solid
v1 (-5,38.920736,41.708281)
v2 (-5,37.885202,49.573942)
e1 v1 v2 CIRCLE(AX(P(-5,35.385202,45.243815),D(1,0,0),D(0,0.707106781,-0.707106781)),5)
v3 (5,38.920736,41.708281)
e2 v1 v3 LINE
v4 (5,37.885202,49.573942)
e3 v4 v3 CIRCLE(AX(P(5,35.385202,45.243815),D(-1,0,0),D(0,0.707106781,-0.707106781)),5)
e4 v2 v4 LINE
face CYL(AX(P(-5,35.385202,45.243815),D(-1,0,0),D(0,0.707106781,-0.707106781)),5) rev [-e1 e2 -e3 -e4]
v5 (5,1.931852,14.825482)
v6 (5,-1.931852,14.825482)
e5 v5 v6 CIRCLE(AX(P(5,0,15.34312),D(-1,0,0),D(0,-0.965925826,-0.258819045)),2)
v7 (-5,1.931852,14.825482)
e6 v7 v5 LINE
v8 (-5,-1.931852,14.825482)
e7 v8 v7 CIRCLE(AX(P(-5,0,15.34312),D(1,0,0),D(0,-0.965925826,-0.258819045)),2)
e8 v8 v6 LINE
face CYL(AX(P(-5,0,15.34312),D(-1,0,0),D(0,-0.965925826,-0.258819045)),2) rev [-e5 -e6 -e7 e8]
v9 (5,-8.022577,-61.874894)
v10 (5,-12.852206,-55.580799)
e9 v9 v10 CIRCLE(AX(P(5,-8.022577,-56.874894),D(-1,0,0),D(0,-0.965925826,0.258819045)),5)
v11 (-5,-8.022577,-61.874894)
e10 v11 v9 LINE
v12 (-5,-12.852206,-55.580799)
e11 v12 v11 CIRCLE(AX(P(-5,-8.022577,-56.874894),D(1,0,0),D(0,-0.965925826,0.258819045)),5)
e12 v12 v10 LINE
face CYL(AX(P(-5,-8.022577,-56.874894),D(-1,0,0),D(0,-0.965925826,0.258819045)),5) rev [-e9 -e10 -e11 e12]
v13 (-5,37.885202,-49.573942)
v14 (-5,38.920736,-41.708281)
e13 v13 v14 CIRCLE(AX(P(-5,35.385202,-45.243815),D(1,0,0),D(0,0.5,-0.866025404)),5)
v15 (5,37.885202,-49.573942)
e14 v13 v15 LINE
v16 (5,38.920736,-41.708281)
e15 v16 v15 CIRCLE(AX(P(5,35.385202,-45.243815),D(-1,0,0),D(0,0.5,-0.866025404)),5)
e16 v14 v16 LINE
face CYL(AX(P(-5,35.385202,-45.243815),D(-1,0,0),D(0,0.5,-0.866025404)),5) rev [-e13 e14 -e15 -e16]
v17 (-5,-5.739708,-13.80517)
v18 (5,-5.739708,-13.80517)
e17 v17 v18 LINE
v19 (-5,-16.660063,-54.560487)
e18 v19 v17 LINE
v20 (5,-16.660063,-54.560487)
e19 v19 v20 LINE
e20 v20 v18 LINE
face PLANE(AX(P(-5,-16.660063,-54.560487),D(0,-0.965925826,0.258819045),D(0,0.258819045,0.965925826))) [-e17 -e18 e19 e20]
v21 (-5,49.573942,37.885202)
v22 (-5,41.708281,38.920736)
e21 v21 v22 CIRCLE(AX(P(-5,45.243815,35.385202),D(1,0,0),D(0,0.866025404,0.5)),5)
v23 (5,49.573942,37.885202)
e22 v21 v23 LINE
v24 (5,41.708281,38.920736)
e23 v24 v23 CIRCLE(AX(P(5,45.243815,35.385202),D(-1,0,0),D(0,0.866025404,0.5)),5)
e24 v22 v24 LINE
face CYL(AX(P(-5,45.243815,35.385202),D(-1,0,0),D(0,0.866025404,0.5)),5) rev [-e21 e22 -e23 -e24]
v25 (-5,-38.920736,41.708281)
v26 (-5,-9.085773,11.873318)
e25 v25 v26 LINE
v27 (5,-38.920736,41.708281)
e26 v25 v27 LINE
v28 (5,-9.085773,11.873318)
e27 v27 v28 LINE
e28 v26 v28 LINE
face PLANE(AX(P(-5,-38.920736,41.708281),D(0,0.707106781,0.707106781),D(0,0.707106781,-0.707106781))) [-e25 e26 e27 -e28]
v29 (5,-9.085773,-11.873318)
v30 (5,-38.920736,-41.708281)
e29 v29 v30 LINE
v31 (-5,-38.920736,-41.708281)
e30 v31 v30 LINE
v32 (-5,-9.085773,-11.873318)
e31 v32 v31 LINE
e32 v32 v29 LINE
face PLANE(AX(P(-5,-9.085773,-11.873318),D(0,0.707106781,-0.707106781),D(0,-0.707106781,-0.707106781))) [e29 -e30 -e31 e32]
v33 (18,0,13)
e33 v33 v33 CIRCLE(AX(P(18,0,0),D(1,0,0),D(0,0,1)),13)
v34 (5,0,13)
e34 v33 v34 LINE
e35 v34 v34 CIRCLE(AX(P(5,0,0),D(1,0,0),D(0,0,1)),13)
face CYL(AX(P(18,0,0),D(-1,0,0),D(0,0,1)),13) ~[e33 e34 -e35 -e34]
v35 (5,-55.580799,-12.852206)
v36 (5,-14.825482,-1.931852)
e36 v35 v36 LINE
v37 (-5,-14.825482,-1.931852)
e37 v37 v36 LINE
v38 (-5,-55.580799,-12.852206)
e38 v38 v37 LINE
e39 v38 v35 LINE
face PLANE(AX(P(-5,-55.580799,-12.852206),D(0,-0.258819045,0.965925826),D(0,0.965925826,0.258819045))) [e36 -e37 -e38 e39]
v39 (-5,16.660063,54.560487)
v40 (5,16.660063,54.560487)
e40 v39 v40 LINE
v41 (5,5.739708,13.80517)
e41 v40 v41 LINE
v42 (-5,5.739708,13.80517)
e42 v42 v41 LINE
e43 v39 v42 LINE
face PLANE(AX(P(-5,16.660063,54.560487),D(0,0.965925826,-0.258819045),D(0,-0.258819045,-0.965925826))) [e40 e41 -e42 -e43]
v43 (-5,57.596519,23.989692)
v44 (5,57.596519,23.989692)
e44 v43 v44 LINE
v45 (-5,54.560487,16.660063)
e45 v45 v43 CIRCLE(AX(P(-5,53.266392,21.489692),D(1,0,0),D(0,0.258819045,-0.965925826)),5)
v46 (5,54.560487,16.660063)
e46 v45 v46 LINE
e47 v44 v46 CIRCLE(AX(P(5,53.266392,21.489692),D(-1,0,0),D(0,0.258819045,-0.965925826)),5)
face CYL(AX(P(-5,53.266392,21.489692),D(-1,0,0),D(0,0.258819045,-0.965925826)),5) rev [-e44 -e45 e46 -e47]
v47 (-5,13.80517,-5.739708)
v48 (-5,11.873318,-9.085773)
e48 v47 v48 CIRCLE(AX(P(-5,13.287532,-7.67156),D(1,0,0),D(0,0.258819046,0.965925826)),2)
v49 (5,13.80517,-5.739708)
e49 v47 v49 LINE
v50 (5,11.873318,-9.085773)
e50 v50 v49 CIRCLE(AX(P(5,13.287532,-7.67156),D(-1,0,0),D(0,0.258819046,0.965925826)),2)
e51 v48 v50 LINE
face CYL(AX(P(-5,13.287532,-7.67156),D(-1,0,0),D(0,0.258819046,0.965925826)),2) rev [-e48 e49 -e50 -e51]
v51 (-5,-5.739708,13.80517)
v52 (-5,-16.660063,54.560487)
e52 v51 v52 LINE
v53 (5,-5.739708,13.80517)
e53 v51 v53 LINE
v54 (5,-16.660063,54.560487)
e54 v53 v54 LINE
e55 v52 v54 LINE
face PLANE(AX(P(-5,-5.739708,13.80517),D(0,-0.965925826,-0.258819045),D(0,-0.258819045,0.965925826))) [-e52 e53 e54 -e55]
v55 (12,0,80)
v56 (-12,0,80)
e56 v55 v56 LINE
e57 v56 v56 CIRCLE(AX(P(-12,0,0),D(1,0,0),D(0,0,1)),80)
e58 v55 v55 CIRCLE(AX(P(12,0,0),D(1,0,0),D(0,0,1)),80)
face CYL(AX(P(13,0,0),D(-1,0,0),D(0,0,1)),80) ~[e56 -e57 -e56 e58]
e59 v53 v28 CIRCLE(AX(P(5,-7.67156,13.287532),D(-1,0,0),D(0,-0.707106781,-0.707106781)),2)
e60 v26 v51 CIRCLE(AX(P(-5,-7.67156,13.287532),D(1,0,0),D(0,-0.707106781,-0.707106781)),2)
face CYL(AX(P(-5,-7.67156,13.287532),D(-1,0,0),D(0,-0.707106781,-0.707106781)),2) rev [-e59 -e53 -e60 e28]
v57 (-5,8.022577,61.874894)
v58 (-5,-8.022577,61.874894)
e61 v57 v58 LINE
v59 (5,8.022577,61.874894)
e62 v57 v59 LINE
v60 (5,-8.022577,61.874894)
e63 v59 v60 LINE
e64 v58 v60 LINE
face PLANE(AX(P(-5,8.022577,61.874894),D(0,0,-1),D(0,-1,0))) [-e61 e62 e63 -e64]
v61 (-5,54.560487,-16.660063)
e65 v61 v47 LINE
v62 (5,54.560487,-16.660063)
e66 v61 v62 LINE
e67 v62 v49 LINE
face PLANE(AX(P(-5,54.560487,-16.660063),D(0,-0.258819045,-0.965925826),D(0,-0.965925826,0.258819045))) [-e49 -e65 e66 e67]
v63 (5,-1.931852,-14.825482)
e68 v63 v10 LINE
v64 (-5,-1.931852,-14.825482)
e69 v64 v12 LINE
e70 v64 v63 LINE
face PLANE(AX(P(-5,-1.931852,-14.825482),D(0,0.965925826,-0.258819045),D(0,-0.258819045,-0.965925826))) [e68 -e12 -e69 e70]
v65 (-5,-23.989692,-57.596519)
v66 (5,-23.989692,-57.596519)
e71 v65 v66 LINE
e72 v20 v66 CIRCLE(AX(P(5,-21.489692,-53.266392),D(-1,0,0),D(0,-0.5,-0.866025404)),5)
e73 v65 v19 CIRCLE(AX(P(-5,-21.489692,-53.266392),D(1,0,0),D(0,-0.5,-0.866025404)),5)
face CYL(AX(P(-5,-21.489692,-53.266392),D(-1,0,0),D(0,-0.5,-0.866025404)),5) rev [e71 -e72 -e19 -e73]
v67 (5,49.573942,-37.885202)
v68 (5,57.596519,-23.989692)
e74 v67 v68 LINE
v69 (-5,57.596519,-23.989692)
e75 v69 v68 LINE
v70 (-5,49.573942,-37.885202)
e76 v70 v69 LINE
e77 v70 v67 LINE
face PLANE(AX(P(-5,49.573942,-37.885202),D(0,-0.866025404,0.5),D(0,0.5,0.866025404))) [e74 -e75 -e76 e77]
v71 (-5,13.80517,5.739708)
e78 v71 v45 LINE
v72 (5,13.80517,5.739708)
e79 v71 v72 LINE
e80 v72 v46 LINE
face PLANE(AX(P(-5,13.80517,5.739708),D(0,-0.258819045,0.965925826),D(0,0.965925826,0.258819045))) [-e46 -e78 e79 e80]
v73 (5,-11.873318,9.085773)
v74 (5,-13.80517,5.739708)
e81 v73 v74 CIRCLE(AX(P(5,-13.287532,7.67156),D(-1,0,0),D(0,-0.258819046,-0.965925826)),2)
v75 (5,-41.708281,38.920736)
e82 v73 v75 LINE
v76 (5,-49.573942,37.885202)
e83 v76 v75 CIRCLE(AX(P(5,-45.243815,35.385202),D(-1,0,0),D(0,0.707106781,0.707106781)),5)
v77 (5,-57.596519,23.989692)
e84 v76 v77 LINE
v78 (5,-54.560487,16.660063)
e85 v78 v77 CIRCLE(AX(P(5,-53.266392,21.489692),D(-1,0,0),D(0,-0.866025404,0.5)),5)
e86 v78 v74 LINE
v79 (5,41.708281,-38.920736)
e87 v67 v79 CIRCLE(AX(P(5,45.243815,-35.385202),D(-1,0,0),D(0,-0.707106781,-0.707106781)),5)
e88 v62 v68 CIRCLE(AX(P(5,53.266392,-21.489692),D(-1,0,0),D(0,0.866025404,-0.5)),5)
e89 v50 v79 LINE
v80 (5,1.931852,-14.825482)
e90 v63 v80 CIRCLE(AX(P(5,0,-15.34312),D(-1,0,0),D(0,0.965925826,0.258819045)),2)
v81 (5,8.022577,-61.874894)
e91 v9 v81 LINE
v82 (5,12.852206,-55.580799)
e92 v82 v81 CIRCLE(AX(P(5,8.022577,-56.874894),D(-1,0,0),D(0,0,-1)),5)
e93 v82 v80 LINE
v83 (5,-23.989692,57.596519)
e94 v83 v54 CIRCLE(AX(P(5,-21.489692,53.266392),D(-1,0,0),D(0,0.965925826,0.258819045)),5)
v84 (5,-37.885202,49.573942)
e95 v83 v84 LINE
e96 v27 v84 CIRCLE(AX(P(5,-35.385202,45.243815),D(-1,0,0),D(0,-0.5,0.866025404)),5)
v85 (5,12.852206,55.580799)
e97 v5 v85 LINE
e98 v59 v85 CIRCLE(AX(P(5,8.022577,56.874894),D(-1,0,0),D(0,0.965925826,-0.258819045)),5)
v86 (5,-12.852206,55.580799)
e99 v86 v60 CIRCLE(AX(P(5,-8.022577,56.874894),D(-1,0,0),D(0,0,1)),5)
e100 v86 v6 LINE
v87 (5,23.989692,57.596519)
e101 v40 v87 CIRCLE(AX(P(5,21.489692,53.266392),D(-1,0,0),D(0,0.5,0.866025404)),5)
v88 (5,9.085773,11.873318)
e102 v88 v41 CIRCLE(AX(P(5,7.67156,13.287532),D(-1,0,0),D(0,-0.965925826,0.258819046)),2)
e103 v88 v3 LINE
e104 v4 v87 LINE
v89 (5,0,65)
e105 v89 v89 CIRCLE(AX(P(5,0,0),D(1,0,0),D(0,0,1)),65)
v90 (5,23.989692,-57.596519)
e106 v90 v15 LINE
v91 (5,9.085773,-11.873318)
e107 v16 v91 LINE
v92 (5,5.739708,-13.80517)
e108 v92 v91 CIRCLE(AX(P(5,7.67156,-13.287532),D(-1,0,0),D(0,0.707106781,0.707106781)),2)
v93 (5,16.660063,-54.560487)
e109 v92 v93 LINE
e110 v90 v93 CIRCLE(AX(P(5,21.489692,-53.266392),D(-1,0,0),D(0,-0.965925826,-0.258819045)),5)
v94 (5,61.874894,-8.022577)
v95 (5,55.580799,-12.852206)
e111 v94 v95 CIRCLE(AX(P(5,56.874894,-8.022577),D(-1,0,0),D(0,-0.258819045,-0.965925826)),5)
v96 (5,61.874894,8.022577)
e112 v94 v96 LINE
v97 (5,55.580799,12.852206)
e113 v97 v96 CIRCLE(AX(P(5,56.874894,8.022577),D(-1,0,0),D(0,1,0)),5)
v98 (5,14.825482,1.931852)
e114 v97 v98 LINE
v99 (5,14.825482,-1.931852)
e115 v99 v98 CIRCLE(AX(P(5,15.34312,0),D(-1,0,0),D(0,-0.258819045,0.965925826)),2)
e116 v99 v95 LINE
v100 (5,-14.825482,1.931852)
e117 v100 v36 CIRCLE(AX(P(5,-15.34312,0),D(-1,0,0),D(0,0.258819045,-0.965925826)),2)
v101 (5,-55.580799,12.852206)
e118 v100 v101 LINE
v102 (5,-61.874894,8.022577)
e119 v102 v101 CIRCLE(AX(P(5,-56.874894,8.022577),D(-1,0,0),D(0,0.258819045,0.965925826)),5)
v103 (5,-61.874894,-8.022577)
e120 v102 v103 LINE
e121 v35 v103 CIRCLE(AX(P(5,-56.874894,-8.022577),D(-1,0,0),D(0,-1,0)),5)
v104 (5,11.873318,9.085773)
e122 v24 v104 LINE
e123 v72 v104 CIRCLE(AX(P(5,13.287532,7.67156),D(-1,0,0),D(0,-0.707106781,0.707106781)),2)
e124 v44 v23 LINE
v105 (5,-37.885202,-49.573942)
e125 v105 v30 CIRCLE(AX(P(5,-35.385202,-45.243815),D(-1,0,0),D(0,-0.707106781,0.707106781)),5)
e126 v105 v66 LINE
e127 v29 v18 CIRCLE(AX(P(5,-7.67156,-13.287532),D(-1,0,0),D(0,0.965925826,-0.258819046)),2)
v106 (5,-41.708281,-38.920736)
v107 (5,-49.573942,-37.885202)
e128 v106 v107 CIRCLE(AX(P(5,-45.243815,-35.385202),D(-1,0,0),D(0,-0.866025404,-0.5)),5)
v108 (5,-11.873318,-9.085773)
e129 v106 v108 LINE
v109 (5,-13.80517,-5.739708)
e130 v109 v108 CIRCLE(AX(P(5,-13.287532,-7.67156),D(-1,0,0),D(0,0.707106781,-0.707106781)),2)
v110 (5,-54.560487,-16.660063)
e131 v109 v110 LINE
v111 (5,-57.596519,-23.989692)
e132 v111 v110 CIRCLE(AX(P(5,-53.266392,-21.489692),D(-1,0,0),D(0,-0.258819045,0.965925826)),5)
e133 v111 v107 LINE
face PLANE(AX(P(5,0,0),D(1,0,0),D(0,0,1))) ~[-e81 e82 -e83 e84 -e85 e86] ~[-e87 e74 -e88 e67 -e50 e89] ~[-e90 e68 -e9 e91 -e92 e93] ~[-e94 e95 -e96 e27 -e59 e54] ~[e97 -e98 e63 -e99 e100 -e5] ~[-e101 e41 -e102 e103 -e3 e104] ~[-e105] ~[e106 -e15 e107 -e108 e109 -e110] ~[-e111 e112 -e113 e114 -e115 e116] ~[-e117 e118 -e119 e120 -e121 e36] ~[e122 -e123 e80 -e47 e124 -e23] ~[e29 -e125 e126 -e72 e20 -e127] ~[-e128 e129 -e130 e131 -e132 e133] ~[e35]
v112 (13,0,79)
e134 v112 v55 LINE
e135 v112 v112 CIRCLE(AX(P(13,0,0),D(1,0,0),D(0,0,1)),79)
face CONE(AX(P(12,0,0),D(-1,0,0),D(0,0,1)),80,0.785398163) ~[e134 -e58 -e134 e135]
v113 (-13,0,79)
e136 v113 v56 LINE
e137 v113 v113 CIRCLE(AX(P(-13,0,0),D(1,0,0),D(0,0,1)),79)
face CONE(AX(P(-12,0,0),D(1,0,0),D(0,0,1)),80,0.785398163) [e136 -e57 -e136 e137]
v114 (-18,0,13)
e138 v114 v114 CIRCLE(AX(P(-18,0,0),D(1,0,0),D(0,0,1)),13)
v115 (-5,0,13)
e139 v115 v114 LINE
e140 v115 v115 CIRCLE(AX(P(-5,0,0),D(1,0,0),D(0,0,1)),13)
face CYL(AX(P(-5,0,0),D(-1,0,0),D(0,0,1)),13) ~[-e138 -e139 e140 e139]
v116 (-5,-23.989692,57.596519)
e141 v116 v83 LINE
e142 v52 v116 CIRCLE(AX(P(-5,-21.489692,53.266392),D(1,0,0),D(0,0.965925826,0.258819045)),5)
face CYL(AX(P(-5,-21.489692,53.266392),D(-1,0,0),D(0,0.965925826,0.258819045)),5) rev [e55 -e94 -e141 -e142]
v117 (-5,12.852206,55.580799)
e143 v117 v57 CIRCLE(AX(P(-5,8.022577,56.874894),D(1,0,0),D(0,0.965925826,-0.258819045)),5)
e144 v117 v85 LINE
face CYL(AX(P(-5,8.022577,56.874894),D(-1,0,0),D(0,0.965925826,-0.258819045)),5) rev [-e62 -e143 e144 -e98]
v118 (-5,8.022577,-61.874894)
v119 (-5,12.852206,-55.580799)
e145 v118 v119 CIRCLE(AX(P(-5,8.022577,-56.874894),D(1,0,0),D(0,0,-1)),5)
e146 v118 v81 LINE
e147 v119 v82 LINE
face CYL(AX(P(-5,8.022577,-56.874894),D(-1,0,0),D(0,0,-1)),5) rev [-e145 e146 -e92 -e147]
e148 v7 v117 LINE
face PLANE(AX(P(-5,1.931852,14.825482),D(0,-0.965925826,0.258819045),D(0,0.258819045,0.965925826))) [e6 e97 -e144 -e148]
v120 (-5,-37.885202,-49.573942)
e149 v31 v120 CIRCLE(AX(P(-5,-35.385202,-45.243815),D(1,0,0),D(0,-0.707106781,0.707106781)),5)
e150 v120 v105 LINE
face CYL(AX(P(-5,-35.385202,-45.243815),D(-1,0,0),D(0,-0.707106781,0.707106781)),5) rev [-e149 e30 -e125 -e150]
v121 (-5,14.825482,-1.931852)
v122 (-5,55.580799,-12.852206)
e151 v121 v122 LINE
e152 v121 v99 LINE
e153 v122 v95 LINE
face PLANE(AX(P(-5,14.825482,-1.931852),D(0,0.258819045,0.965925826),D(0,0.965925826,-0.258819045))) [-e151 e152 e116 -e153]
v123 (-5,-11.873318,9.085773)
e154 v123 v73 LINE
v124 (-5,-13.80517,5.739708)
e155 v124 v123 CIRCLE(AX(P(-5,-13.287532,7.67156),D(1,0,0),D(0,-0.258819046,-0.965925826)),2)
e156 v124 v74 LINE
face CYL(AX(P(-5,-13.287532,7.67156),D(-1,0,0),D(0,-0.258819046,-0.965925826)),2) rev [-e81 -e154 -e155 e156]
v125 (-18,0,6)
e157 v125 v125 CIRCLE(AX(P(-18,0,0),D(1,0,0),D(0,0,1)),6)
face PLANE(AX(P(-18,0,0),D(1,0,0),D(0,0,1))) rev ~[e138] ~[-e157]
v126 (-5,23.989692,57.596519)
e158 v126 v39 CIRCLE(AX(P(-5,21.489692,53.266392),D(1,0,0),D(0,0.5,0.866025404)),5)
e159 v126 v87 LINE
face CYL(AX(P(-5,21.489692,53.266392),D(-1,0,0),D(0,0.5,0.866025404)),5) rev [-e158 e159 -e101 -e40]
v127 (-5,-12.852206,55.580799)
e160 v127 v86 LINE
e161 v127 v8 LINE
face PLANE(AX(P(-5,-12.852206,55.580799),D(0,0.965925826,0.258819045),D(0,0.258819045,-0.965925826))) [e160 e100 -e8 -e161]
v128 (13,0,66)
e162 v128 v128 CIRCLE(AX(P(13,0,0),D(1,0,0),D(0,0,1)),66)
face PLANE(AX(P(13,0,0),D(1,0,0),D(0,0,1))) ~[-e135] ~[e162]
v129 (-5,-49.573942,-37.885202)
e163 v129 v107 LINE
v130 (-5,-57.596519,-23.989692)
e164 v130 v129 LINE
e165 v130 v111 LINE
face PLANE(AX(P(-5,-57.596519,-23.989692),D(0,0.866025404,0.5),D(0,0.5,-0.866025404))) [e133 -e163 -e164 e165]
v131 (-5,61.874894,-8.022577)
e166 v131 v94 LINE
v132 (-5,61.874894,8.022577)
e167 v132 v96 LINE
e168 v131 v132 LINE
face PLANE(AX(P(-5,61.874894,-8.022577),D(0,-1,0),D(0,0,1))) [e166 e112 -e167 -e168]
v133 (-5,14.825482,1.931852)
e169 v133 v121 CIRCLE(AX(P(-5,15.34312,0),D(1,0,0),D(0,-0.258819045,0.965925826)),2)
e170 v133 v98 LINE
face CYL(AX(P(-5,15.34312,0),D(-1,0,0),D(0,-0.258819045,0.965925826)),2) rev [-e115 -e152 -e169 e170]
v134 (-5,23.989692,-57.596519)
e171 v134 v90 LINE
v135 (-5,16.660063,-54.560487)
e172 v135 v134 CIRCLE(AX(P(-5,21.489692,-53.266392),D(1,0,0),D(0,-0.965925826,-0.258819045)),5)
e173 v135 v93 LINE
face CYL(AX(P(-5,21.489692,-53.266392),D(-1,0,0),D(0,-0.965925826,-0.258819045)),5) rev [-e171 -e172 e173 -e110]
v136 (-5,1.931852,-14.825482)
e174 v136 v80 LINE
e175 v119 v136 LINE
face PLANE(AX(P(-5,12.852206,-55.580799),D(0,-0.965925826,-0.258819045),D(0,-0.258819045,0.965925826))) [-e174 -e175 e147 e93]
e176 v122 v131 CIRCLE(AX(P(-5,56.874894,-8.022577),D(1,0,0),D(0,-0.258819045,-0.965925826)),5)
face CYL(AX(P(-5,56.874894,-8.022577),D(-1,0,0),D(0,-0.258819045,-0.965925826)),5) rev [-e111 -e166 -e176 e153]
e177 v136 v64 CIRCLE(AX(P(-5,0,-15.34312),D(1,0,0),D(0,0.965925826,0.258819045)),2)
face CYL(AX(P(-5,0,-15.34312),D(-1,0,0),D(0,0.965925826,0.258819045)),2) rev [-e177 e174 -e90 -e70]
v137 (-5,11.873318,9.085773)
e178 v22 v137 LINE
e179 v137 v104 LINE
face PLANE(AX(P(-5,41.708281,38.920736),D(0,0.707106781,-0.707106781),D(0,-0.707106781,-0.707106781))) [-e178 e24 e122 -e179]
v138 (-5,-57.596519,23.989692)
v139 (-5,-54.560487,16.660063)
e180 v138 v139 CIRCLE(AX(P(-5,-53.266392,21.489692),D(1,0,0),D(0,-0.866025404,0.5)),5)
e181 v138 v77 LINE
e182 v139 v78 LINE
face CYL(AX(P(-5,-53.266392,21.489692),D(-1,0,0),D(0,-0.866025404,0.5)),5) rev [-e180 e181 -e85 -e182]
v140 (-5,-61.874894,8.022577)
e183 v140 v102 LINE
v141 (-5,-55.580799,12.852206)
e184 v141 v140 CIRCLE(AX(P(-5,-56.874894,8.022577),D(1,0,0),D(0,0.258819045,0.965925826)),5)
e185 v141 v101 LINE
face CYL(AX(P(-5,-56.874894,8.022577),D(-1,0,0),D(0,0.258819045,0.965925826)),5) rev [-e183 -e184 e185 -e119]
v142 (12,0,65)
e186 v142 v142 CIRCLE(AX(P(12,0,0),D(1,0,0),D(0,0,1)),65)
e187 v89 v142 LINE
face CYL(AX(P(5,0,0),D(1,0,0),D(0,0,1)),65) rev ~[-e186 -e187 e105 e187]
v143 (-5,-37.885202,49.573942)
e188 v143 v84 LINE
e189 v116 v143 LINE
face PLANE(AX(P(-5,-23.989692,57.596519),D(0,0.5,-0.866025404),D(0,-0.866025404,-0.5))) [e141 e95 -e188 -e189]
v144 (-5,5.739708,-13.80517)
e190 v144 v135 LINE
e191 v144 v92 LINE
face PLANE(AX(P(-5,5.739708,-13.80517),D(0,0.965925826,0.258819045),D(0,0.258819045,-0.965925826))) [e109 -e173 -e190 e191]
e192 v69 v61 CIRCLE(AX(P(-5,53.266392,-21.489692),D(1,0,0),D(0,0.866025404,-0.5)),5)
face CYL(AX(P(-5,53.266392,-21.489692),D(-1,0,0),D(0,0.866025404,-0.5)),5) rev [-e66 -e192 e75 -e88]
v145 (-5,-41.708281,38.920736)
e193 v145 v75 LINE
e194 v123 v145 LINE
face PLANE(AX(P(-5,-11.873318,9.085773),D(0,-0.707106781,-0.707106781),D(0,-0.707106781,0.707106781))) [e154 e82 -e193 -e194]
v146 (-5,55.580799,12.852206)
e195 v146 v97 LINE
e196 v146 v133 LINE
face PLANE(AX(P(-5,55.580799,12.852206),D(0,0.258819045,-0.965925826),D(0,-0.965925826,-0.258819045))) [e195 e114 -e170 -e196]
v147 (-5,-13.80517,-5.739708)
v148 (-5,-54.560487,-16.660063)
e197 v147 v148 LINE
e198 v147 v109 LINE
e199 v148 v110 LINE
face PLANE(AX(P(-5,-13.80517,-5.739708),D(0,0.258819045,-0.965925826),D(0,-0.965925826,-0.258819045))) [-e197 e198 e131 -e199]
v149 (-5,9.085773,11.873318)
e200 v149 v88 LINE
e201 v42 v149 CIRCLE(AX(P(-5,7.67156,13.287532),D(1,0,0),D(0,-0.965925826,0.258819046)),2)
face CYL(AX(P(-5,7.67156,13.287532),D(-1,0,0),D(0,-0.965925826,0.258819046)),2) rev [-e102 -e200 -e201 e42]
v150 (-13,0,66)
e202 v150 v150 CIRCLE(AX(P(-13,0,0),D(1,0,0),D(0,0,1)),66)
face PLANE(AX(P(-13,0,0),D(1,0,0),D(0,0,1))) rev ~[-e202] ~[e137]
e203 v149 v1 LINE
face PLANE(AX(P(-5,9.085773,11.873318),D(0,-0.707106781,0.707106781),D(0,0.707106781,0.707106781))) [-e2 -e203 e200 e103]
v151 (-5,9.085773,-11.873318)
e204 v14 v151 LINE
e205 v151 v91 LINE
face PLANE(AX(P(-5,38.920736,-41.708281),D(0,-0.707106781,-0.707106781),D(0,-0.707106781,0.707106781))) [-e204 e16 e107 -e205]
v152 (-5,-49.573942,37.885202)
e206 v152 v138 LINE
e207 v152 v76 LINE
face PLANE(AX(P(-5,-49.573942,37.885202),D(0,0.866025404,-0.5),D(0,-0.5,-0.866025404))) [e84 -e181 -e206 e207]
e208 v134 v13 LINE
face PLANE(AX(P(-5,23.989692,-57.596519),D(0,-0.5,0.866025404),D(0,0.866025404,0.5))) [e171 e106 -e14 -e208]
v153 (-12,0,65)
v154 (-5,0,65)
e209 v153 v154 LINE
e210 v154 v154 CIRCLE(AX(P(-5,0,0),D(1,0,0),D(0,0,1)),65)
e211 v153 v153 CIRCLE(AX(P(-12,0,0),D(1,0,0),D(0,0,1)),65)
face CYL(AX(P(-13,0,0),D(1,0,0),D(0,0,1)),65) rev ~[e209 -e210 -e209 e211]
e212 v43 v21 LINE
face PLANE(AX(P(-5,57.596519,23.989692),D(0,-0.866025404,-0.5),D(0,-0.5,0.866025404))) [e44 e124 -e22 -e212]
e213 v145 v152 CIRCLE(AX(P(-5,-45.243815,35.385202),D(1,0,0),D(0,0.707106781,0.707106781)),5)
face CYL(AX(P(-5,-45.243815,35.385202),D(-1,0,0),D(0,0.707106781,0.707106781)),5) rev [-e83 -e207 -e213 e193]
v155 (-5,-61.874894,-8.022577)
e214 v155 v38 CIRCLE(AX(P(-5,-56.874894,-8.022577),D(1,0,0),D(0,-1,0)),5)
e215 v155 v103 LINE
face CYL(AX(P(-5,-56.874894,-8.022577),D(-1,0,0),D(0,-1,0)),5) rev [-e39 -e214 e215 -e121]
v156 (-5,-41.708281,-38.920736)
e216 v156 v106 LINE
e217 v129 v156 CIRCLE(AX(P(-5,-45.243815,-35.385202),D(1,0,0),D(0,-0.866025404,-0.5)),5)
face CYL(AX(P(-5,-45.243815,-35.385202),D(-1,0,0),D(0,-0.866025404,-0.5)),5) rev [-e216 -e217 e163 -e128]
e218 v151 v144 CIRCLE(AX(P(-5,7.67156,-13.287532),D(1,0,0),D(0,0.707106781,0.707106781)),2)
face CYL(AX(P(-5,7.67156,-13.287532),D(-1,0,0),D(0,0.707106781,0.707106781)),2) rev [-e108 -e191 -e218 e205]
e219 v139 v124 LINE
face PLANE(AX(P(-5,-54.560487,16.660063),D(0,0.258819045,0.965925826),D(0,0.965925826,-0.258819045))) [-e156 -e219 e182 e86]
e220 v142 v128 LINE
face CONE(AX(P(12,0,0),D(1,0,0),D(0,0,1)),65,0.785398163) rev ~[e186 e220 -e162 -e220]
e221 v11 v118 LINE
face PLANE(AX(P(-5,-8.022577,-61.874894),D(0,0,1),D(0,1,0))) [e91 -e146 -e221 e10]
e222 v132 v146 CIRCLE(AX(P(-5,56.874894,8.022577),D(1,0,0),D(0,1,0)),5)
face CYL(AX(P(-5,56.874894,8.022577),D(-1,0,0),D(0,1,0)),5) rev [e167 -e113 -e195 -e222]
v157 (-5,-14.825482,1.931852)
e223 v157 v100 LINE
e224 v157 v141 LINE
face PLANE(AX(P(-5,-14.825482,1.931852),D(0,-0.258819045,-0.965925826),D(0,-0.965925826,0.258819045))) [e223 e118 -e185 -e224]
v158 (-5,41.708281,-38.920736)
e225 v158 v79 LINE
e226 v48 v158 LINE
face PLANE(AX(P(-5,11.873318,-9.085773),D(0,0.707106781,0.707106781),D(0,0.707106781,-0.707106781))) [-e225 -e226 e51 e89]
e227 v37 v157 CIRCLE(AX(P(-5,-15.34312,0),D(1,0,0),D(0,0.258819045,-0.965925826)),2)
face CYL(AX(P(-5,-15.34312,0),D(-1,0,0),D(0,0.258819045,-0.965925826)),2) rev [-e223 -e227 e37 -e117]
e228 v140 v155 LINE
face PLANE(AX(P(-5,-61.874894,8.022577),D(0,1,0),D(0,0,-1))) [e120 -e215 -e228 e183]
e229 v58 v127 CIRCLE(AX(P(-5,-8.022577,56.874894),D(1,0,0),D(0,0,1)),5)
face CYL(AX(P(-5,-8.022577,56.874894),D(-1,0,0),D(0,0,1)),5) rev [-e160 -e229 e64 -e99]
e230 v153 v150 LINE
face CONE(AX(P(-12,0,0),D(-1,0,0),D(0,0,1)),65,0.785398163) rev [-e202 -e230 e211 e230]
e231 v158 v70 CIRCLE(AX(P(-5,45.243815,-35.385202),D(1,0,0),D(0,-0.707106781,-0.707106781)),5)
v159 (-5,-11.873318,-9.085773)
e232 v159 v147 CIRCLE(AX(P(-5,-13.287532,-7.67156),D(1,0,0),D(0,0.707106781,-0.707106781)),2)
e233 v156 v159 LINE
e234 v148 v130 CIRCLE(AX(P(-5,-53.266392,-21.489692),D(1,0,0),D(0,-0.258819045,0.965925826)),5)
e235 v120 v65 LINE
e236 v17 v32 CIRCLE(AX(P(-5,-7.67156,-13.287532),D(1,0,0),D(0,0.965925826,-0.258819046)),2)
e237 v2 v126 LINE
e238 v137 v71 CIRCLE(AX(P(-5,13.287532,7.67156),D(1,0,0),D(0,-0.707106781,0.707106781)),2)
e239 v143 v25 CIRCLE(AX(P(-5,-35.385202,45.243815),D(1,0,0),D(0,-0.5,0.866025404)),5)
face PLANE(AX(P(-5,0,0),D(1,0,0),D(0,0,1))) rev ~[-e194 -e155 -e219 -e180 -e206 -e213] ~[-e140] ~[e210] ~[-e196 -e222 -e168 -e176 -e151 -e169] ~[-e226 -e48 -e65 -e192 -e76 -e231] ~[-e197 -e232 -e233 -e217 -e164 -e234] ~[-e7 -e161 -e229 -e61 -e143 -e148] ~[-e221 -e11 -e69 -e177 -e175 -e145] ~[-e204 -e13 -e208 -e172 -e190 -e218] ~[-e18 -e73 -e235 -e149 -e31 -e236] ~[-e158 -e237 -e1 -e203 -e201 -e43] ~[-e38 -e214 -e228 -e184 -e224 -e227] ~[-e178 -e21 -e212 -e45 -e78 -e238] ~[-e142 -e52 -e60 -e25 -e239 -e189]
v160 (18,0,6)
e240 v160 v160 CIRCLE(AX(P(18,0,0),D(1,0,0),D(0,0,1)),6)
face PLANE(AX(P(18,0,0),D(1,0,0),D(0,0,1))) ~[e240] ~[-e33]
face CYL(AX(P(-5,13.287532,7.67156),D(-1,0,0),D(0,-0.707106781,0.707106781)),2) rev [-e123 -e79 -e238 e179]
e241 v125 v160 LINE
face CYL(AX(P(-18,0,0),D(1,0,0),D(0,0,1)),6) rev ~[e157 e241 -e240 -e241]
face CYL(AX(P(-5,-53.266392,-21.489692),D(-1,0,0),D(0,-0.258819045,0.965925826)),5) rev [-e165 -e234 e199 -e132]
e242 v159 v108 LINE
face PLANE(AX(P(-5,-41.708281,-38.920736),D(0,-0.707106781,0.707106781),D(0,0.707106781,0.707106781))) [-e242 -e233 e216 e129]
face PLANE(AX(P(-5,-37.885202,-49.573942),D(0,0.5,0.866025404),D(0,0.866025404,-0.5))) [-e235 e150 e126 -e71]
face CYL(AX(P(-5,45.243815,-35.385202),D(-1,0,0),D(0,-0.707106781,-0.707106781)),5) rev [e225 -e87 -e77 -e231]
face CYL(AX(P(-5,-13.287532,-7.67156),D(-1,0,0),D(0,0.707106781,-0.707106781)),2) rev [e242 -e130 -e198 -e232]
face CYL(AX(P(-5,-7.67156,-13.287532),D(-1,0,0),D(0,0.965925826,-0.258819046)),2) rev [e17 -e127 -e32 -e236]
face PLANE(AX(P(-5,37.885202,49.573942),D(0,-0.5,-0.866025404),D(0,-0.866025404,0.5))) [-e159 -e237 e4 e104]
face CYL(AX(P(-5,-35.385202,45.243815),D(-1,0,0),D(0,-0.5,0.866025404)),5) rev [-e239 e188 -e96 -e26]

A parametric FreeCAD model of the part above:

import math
import FreeCAD as App
import Part
import Sketcher
Q = App.Units.Quantity


def edges_at(feature, points):
    """Names of the edges that pass closest to the given points."""
    edges = feature.Shape.Edges
    near = lambda p: min(range(len(edges)), key=lambda i: edges[i].distToShape(Part.Vertex(*p))[0])
    return sorted({f"Edge{near(p) + 1}" for p in points})


def add_polygon(sketch, points):
    """Adds a closed chain of lines whose ends are joined by coincident constraints."""
    first, n = sketch.GeometryCount, len(points)
    for a, b in zip(points, points[1:] + points[:1]):
        sketch.addGeometry(Part.LineSegment(App.Vector(*a, 0), App.Vector(*b, 0)), False)
    for i in range(n):
        sketch.addConstraint(Sketcher.Constraint("Coincident", first + i, 2, first + (i + 1) % n, 1))

doc = App.newDocument("Part")
params = doc.addObject("Spreadsheet::Sheet", "Params")
for row, (alias, value) in enumerate([
    ("sketch1_width", "36 mm"),
    ("sketch1_width2", "13 mm"),
    ("sketch1_width3", "8 mm"),
    ("sketch1_height", "7 mm"),
    ("sketch1_height2", "52 mm"),
    ("revolution_angle", "360 deg"),
    ("sketch2_radius", "5 mm"),
    ("sketch2_radius2", "2 mm"),
    ("pocket1_length", "20 mm"),
    ("chamfer_size", "1 mm"),
], start=1):
    params.set(f"A{row}", alias)
    params.set(f"B{row}", "=" + value)
    params.setAlias(f"B{row}", alias)

body = doc.addObject("PartDesign::Body", "Body")

# Sketch on XY plane
sketch1 = body.newObject("Sketcher::SketchObject", "Sketch")
sketch1.AttachmentSupport = (doc.getObject("XY_Plane"), [""])
sketch1.MapMode = "FlatFace"
add_polygon(sketch1, [(-18, 6), (18, 6), (18, 13), (5, 13), (5, 65), (13, 65), (13, 80), (-13, 80), (-13, 65), (-5, 65), (-5, 13), (-18, 13)])  # lines 0-11
sketch1.addConstraint(Sketcher.Constraint("Horizontal", 0))
sketch1.addConstraint(Sketcher.Constraint("Vertical", 1))
sketch1.addConstraint(Sketcher.Constraint("Horizontal", 2))
sketch1.addConstraint(Sketcher.Constraint("Vertical", 3))
sketch1.addConstraint(Sketcher.Constraint("Horizontal", 4))
sketch1.addConstraint(Sketcher.Constraint("Vertical", 5))
sketch1.addConstraint(Sketcher.Constraint("Horizontal", 6))
sketch1.addConstraint(Sketcher.Constraint("Vertical", 7))
sketch1.addConstraint(Sketcher.Constraint("Horizontal", 8))
sketch1.addConstraint(Sketcher.Constraint("Vertical", 9))
sketch1.addConstraint(Sketcher.Constraint("Horizontal", 10))
sketch1.addConstraint(Sketcher.Constraint("Vertical", 11))
sketch1.addConstraint(Sketcher.Constraint("Symmetric", 4, 2, 7, 2, -2))
sketch1.addConstraint(Sketcher.Constraint("Symmetric", 2, 2, 9, 2, -2))
sketch1.addConstraint(Sketcher.Constraint("Equal", 2, 10))
sketch1.addConstraint(Sketcher.Constraint("DistanceX", 0, 1, 0, 2, Q("36 mm")))
sketch1.addConstraint(Sketcher.Constraint("DistanceX", 2, 2, 2, 1, Q("13 mm")))
sketch1.addConstraint(Sketcher.Constraint("DistanceX", 4, 1, 4, 2, Q("8 mm")))
sketch1.addConstraint(Sketcher.Constraint("DistanceY", 1, 1, 1, 2, Q("7 mm")))
sketch1.addConstraint(Sketcher.Constraint("DistanceY", 3, 1, 3, 2, Q("52 mm")))
sketch1.addConstraint(Sketcher.Constraint("DistanceY", 5, 1, 5, 2, Q("15 mm")))
sketch1.addConstraint(Sketcher.Constraint("DistanceY", -1, 1, 0, 2, Q("6 mm")))
sketch1.setExpression("Constraints[27]", "Params.sketch1_width")
sketch1.setExpression("Constraints[28]", "Params.sketch1_width2")
sketch1.setExpression("Constraints[29]", "Params.sketch1_width3")
sketch1.setExpression("Constraints[30]", "Params.sketch1_height")
sketch1.setExpression("Constraints[31]", "Params.sketch1_height2")
revolution = body.newObject("PartDesign::Revolution", "Revolution")
revolution.Profile = sketch1
revolution.ReferenceAxis = (sketch1, ["H_Axis"])
revolution.setExpression("Angle", "Params.revolution_angle")

# Sketch on YZ plane
sketch2 = body.newObject("Sketcher::SketchObject", "Sketch001")
sketch2.AttachmentSupport = (doc.getObject("YZ_Plane"), [""])
sketch2.MapMode = "FlatFace"
sketch2.AttachmentOffset = App.Placement(App.Vector(0, 0, -5), App.Rotation())
sketch2.addGeometry(Part.LineSegment(App.Vector(61.9, 8, 0), App.Vector(61.9, -8, 0)), False)
sketch2.addGeometry(Part.ArcOfCircle(Part.Circle(App.Vector(56.9, -8, 0), App.Vector(0, 0, 1), 5), math.radians(-105), math.radians(0)), False)
sketch2.addGeometry(Part.LineSegment(App.Vector(55.6, -12.9, 0), App.Vector(14.8, -1.9, 0)), False)
sketch2.addGeometry(Part.ArcOfCircle(Part.Circle(App.Vector(15.3, 0, 0), App.Vector(0, 0, 1), 2), math.radians(105), math.radians(255)), False)
sketch2.addGeometry(Part.LineSegment(App.Vector(14.8, 1.9, 0), App.Vector(55.6, 12.9, 0)), False)
sketch2.addGeometry(Part.ArcOfCircle(Part.Circle(App.Vector(56.9, 8, 0), App.Vector(0, 0, 1), 5), math.radians(0), math.radians(105)), False)
sketch2.addGeometry(Part.LineSegment(App.Vector(49.6, 37.9, 0), App.Vector(57.6, 24, 0)), False)
sketch2.addGeometry(Part.ArcOfCircle(Part.Circle(App.Vector(53.3, 21.5, 0), App.Vector(0, 0, 1), 5), math.radians(-75), math.radians(30)), False)
sketch2.addGeometry(Part.LineSegment(App.Vector(54.6, 16.7, 0), App.Vector(13.8, 5.7, 0)), False)
sketch2.addGeometry(Part.ArcOfCircle(Part.Circle(App.Vector(13.3, 7.7, 0), App.Vector(0, 0, 1), 2), math.radians(135), math.radians(285)), False)
sketch2.addGeometry(Part.LineSegment(App.Vector(11.9, 9.1, 0), App.Vector(41.7, 38.9, 0)), False)
sketch2.addGeometry(Part.ArcOfCircle(Part.Circle(App.Vector(45.2, 35.4, 0), App.Vector(0, 0, 1), 5), math.radians(30), math.radians(135)), False)
sketch2.addGeometry(Part.LineSegment(App.Vector(24, 57.6, 0), App.Vector(37.9, 49.6, 0)), False)
sketch2.addGeometry(Part.ArcOfCircle(Part.Circle(App.Vector(35.4, 45.2, 0), App.Vector(0, 0, 1), 5), math.radians(-45), math.radians(60)), False)
sketch2.addGeometry(Part.LineSegment(App.Vector(38.9, 41.7, 0), App.Vector(9.1, 11.9, 0)), False)
sketch2.addGeometry(Part.ArcOfCircle(Part.Circle(App.Vector(7.7, 13.3, 0), App.Vector(0, 0, 1), 2), math.radians(165), math.radians(315)), False)
sketch2.addGeometry(Part.LineSegment(App.Vector(5.7, 13.8, 0), App.Vector(16.7, 54.6, 0)), False)
sketch2.addGeometry(Part.ArcOfCircle(Part.Circle(App.Vector(21.5, 53.3, 0), App.Vector(0, 0, 1), 5), math.radians(60), math.radians(165)), False)
sketch2.addGeometry(Part.LineSegment(App.Vector(-8, 61.9, 0), App.Vector(8, 61.9, 0)), False)
sketch2.addGeometry(Part.ArcOfCircle(Part.Circle(App.Vector(8, 56.9, 0), App.Vector(0, 0, 1), 5), math.radians(-15), math.radians(90)), False)
sketch2.addGeometry(Part.LineSegment(App.Vector(12.9, 55.6, 0), App.Vector(1.9, 14.8, 0)), False)
sketch2.addGeometry(Part.ArcOfCircle(Part.Circle(App.Vector(0, 15.3, 0), App.Vector(0, 0, 1), 2), math.radians(-165), math.radians(-15)), False)
sketch2.addGeometry(Part.LineSegment(App.Vector(-1.9, 14.8, 0), App.Vector(-12.9, 55.6, 0)), False)
sketch2.addGeometry(Part.ArcOfCircle(Part.Circle(App.Vector(-8, 56.9, 0), App.Vector(0, 0, 1), 5), math.radians(90), math.radians(195)), False)
sketch2.addGeometry(Part.LineSegment(App.Vector(-37.9, 49.6, 0), App.Vector(-24, 57.6, 0)), False)
sketch2.addGeometry(Part.ArcOfCircle(Part.Circle(App.Vector(-21.5, 53.3, 0), App.Vector(0, 0, 1), 5), math.radians(15), math.radians(120)), False)
sketch2.addGeometry(Part.LineSegment(App.Vector(-16.7, 54.6, 0), App.Vector(-5.7, 13.8, 0)), False)
sketch2.addGeometry(Part.ArcOfCircle(Part.Circle(App.Vector(-7.7, 13.3, 0), App.Vector(0, 0, 1), 2), math.radians(-135), math.radians(15)), False)
sketch2.addGeometry(Part.LineSegment(App.Vector(-9.1, 11.9, 0), App.Vector(-38.9, 41.7, 0)), False)
sketch2.addGeometry(Part.ArcOfCircle(Part.Circle(App.Vector(-35.4, 45.2, 0), App.Vector(0, 0, 1), 5), math.radians(120), math.radians(225)), False)
sketch2.addGeometry(Part.LineSegment(App.Vector(-57.6, 24, 0), App.Vector(-49.6, 37.9, 0)), False)
sketch2.addGeometry(Part.ArcOfCircle(Part.Circle(App.Vector(-45.2, 35.4, 0), App.Vector(0, 0, 1), 5), math.radians(45), math.radians(150)), False)
sketch2.addGeometry(Part.LineSegment(App.Vector(-41.7, 38.9, 0), App.Vector(-11.9, 9.1, 0)), False)
sketch2.addGeometry(Part.ArcOfCircle(Part.Circle(App.Vector(-13.3, 7.7, 0), App.Vector(0, 0, 1), 2), math.radians(-105), math.radians(45)), False)
sketch2.addGeometry(Part.LineSegment(App.Vector(-13.8, 5.7, 0), App.Vector(-54.6, 16.7, 0)), False)
sketch2.addGeometry(Part.ArcOfCircle(Part.Circle(App.Vector(-53.3, 21.5, 0), App.Vector(0, 0, 1), 5), math.radians(150), math.radians(255)), False)
sketch2.addGeometry(Part.LineSegment(App.Vector(-61.9, -8, 0), App.Vector(-61.9, 8, 0)), False)
sketch2.addGeometry(Part.ArcOfCircle(Part.Circle(App.Vector(-56.9, 8, 0), App.Vector(0, 0, 1), 5), math.radians(75), math.radians(180)), False)
sketch2.addGeometry(Part.LineSegment(App.Vector(-55.6, 12.9, 0), App.Vector(-14.8, 1.9, 0)), False)
sketch2.addGeometry(Part.ArcOfCircle(Part.Circle(App.Vector(-15.3, 0, 0), App.Vector(0, 0, 1), 2), math.radians(-75), math.radians(75)), False)
sketch2.addGeometry(Part.LineSegment(App.Vector(-14.8, -1.9, 0), App.Vector(-55.6, -12.9, 0)), False)
sketch2.addGeometry(Part.ArcOfCircle(Part.Circle(App.Vector(-56.9, -8, 0), App.Vector(0, 0, 1), 5), math.radians(180), math.radians(285)), False)
sketch2.addGeometry(Part.LineSegment(App.Vector(-49.6, -37.9, 0), App.Vector(-57.6, -24, 0)), False)
sketch2.addGeometry(Part.ArcOfCircle(Part.Circle(App.Vector(-53.3, -21.5, 0), App.Vector(0, 0, 1), 5), math.radians(105), math.radians(210)), False)
sketch2.addGeometry(Part.LineSegment(App.Vector(-54.6, -16.7, 0), App.Vector(-13.8, -5.7, 0)), False)
sketch2.addGeometry(Part.ArcOfCircle(Part.Circle(App.Vector(-13.3, -7.7, 0), App.Vector(0, 0, 1), 2), math.radians(-45), math.radians(105)), False)
sketch2.addGeometry(Part.LineSegment(App.Vector(-11.9, -9.1, 0), App.Vector(-41.7, -38.9, 0)), False)
sketch2.addGeometry(Part.ArcOfCircle(Part.Circle(App.Vector(-45.2, -35.4, 0), App.Vector(0, 0, 1), 5), math.radians(-150), math.radians(-45)), False)
sketch2.addGeometry(Part.LineSegment(App.Vector(-24, -57.6, 0), App.Vector(-37.9, -49.6, 0)), False)
sketch2.addGeometry(Part.ArcOfCircle(Part.Circle(App.Vector(-35.4, -45.2, 0), App.Vector(0, 0, 1), 5), math.radians(135), math.radians(240)), False)
sketch2.addGeometry(Part.LineSegment(App.Vector(-38.9, -41.7, 0), App.Vector(-9.1, -11.9, 0)), False)
sketch2.addGeometry(Part.ArcOfCircle(Part.Circle(App.Vector(-7.7, -13.3, 0), App.Vector(0, 0, 1), 2), math.radians(-15), math.radians(135)), False)
sketch2.addGeometry(Part.LineSegment(App.Vector(-5.7, -13.8, 0), App.Vector(-16.7, -54.6, 0)), False)
sketch2.addGeometry(Part.ArcOfCircle(Part.Circle(App.Vector(-21.5, -53.3, 0), App.Vector(0, 0, 1), 5), math.radians(-120), math.radians(-15)), False)
sketch2.addGeometry(Part.LineSegment(App.Vector(8, -61.9, 0), App.Vector(-8, -61.9, 0)), False)
sketch2.addGeometry(Part.ArcOfCircle(Part.Circle(App.Vector(-8, -56.9, 0), App.Vector(0, 0, 1), 5), math.radians(165), math.radians(270)), False)
sketch2.addGeometry(Part.LineSegment(App.Vector(-12.9, -55.6, 0), App.Vector(-1.9, -14.8, 0)), False)
sketch2.addGeometry(Part.ArcOfCircle(Part.Circle(App.Vector(0, -15.3, 0), App.Vector(0, 0, 1), 2), math.radians(15), math.radians(165)), False)
sketch2.addGeometry(Part.LineSegment(App.Vector(1.9, -14.8, 0), App.Vector(12.9, -55.6, 0)), False)
sketch2.addGeometry(Part.ArcOfCircle(Part.Circle(App.Vector(8, -56.9, 0), App.Vector(0, 0, 1), 5), math.radians(-90), math.radians(15)), False)
sketch2.addGeometry(Part.LineSegment(App.Vector(37.9, -49.6, 0), App.Vector(24, -57.6, 0)), False)
sketch2.addGeometry(Part.ArcOfCircle(Part.Circle(App.Vector(21.5, -53.3, 0), App.Vector(0, 0, 1), 5), math.radians(-165), math.radians(-60)), False)
sketch2.addGeometry(Part.LineSegment(App.Vector(16.7, -54.6, 0), App.Vector(5.7, -13.8, 0)), False)
sketch2.addGeometry(Part.ArcOfCircle(Part.Circle(App.Vector(7.7, -13.3, 0), App.Vector(0, 0, 1), 2), math.radians(45), math.radians(195)), False)
sketch2.addGeometry(Part.LineSegment(App.Vector(9.1, -11.9, 0), App.Vector(38.9, -41.7, 0)), False)
sketch2.addGeometry(Part.ArcOfCircle(Part.Circle(App.Vector(35.4, -45.2, 0), App.Vector(0, 0, 1), 5), math.radians(-60), math.radians(45)), False)
sketch2.addGeometry(Part.LineSegment(App.Vector(57.6, -24, 0), App.Vector(49.6, -37.9, 0)), False)
sketch2.addGeometry(Part.ArcOfCircle(Part.Circle(App.Vector(45.2, -35.4, 0), App.Vector(0, 0, 1), 5), math.radians(-135), math.radians(-30)), False)
sketch2.addGeometry(Part.LineSegment(App.Vector(41.7, -38.9, 0), App.Vector(11.9, -9.1, 0)), False)
sketch2.addGeometry(Part.ArcOfCircle(Part.Circle(App.Vector(13.3, -7.7, 0), App.Vector(0, 0, 1), 2), math.radians(75), math.radians(225)), False)
sketch2.addGeometry(Part.LineSegment(App.Vector(13.8, -5.7, 0), App.Vector(54.6, -16.7, 0)), False)
sketch2.addGeometry(Part.ArcOfCircle(Part.Circle(App.Vector(53.3, -21.5, 0), App.Vector(0, 0, 1), 5), math.radians(-30), math.radians(75)), False)
sketch2.addConstraint(Sketcher.Constraint("Tangent", 0, 2, 1, 2))
sketch2.addConstraint(Sketcher.Constraint("Tangent", 1, 1, 2, 1))
sketch2.addConstraint(Sketcher.Constraint("Tangent", 2, 2, 3, 2))
sketch2.addConstraint(Sketcher.Constraint("Tangent", 3, 1, 4, 1))
sketch2.addConstraint(Sketcher.Constraint("Tangent", 4, 2, 5, 2))
sketch2.addConstraint(Sketcher.Constraint("Tangent", 5, 1, 0, 1))
sketch2.addConstraint(Sketcher.Constraint("Tangent", 6, 2, 7, 2))
sketch2.addConstraint(Sketcher.Constraint("Tangent", 7, 1, 8, 1))
sketch2.addConstraint(Sketcher.Constraint("Tangent", 8, 2, 9, 2))
sketch2.addConstraint(Sketcher.Constraint("Tangent", 9, 1, 10, 1))
sketch2.addConstraint(Sketcher.Constraint("Tangent", 10, 2, 11, 2))
sketch2.addConstraint(Sketcher.Constraint("Tangent", 11, 1, 6, 1))
sketch2.addConstraint(Sketcher.Constraint("Tangent", 12, 2, 13, 2))
sketch2.addConstraint(Sketcher.Constraint("Tangent", 13, 1, 14, 1))
sketch2.addConstraint(Sketcher.Constraint("Tangent", 14, 2, 15, 2))
sketch2.addConstraint(Sketcher.Constraint("Tangent", 15, 1, 16, 1))
sketch2.addConstraint(Sketcher.Constraint("Tangent", 16, 2, 17, 2))
sketch2.addConstraint(Sketcher.Constraint("Tangent", 17, 1, 12, 1))
sketch2.addConstraint(Sketcher.Constraint("Tangent", 18, 2, 19, 2))
sketch2.addConstraint(Sketcher.Constraint("Tangent", 19, 1, 20, 1))
sketch2.addConstraint(Sketcher.Constraint("Tangent", 20, 2, 21, 2))
sketch2.addConstraint(Sketcher.Constraint("Tangent", 21, 1, 22, 1))
sketch2.addConstraint(Sketcher.Constraint("Tangent", 22, 2, 23, 2))
sketch2.addConstraint(Sketcher.Constraint("Tangent", 23, 1, 18, 1))
sketch2.addConstraint(Sketcher.Constraint("Tangent", 24, 2, 25, 2))
sketch2.addConstraint(Sketcher.Constraint("Tangent", 25, 1, 26, 1))
sketch2.addConstraint(Sketcher.Constraint("Tangent", 26, 2, 27, 2))
sketch2.addConstraint(Sketcher.Constraint("Tangent", 27, 1, 28, 1))
sketch2.addConstraint(Sketcher.Constraint("Tangent", 28, 2, 29, 2))
sketch2.addConstraint(Sketcher.Constraint("Tangent", 29, 1, 24, 1))
sketch2.addConstraint(Sketcher.Constraint("Tangent", 30, 2, 31, 2))
sketch2.addConstraint(Sketcher.Constraint("Tangent", 31, 1, 32, 1))
sketch2.addConstraint(Sketcher.Constraint("Tangent", 32, 2, 33, 2))
sketch2.addConstraint(Sketcher.Constraint("Tangent", 33, 1, 34, 1))
sketch2.addConstraint(Sketcher.Constraint("Tangent", 34, 2, 35, 2))
sketch2.addConstraint(Sketcher.Constraint("Tangent", 35, 1, 30, 1))
sketch2.addConstraint(Sketcher.Constraint("Tangent", 36, 2, 37, 2))
sketch2.addConstraint(Sketcher.Constraint("Tangent", 37, 1, 38, 1))
sketch2.addConstraint(Sketcher.Constraint("Tangent", 38, 2, 39, 2))
sketch2.addConstraint(Sketcher.Constraint("Tangent", 39, 1, 40, 1))
sketch2.addConstraint(Sketcher.Constraint("Tangent", 40, 2, 41, 2))
sketch2.addConstraint(Sketcher.Constraint("Tangent", 41, 1, 36, 1))
sketch2.addConstraint(Sketcher.Constraint("Tangent", 42, 2, 43, 2))
sketch2.addConstraint(Sketcher.Constraint("Tangent", 43, 1, 44, 1))
sketch2.addConstraint(Sketcher.Constraint("Tangent", 44, 2, 45, 2))
sketch2.addConstraint(Sketcher.Constraint("Tangent", 45, 1, 46, 1))
sketch2.addConstraint(Sketcher.Constraint("Tangent", 46, 2, 47, 2))
sketch2.addConstraint(Sketcher.Constraint("Tangent", 47, 1, 42, 1))
sketch2.addConstraint(Sketcher.Constraint("Tangent", 48, 2, 49, 2))
sketch2.addConstraint(Sketcher.Constraint("Tangent", 49, 1, 50, 1))
sketch2.addConstraint(Sketcher.Constraint("Tangent", 50, 2, 51, 2))
sketch2.addConstraint(Sketcher.Constraint("Tangent", 51, 1, 52, 1))
sketch2.addConstraint(Sketcher.Constraint("Tangent", 52, 2, 53, 2))
sketch2.addConstraint(Sketcher.Constraint("Tangent", 53, 1, 48, 1))
sketch2.addConstraint(Sketcher.Constraint("Tangent", 54, 2, 55, 2))
sketch2.addConstraint(Sketcher.Constraint("Tangent", 55, 1, 56, 1))
sketch2.addConstraint(Sketcher.Constraint("Tangent", 56, 2, 57, 2))
sketch2.addConstraint(Sketcher.Constraint("Tangent", 57, 1, 58, 1))
sketch2.addConstraint(Sketcher.Constraint("Tangent", 58, 2, 59, 2))
sketch2.addConstraint(Sketcher.Constraint("Tangent", 59, 1, 54, 1))
sketch2.addConstraint(Sketcher.Constraint("Tangent", 60, 2, 61, 2))
sketch2.addConstraint(Sketcher.Constraint("Tangent", 61, 1, 62, 1))
sketch2.addConstraint(Sketcher.Constraint("Tangent", 62, 2, 63, 2))
sketch2.addConstraint(Sketcher.Constraint("Tangent", 63, 1, 64, 1))
sketch2.addConstraint(Sketcher.Constraint("Tangent", 64, 2, 65, 2))
sketch2.addConstraint(Sketcher.Constraint("Tangent", 65, 1, 60, 1))
sketch2.addConstraint(Sketcher.Constraint("Tangent", 66, 2, 67, 2))
sketch2.addConstraint(Sketcher.Constraint("Tangent", 67, 1, 68, 1))
sketch2.addConstraint(Sketcher.Constraint("Tangent", 68, 2, 69, 2))
sketch2.addConstraint(Sketcher.Constraint("Tangent", 69, 1, 70, 1))
sketch2.addConstraint(Sketcher.Constraint("Tangent", 70, 2, 71, 2))
sketch2.addConstraint(Sketcher.Constraint("Tangent", 71, 1, 66, 1))
sketch2.addConstraint(Sketcher.Constraint("Vertical", 0))
sketch2.addConstraint(Sketcher.Constraint("Horizontal", 18))
sketch2.addConstraint(Sketcher.Constraint("Vertical", 36))
sketch2.addConstraint(Sketcher.Constraint("Horizontal", 54))
sketch2.addConstraint(Sketcher.Constraint("Equal", 1, 5))
sketch2.addConstraint(Sketcher.Constraint("Equal", 5, 7))
sketch2.addConstraint(Sketcher.Constraint("Equal", 3, 9))
sketch2.addConstraint(Sketcher.Constraint("Equal", 7, 11))
sketch2.addConstraint(Sketcher.Constraint("Equal", 11, 13))
sketch2.addConstraint(Sketcher.Constraint("Equal", 9, 15))
sketch2.addConstraint(Sketcher.Constraint("Equal", 13, 17))
sketch2.addConstraint(Sketcher.Constraint("Equal", 17, 19))
sketch2.addConstraint(Sketcher.Constraint("Equal", 15, 21))
sketch2.addConstraint(Sketcher.Constraint("Equal", 19, 23))
sketch2.addConstraint(Sketcher.Constraint("Equal", 23, 25))
sketch2.addConstraint(Sketcher.Constraint("Equal", 21, 27))
sketch2.addConstraint(Sketcher.Constraint("Equal", 25, 29))
sketch2.addConstraint(Sketcher.Constraint("Equal", 29, 31))
sketch2.addConstraint(Sketcher.Constraint("Equal", 27, 33))
sketch2.addConstraint(Sketcher.Constraint("Equal", 31, 35))
sketch2.addConstraint(Sketcher.Constraint("Equal", 35, 37))
sketch2.addConstraint(Sketcher.Constraint("Equal", 33, 39))
sketch2.addConstraint(Sketcher.Constraint("Equal", 37, 41))
sketch2.addConstraint(Sketcher.Constraint("Equal", 41, 43))
sketch2.addConstraint(Sketcher.Constraint("Equal", 39, 45))
sketch2.addConstraint(Sketcher.Constraint("Equal", 43, 47))
sketch2.addConstraint(Sketcher.Constraint("Equal", 47, 49))
sketch2.addConstraint(Sketcher.Constraint("Equal", 45, 51))
sketch2.addConstraint(Sketcher.Constraint("Equal", 49, 53))
sketch2.addConstraint(Sketcher.Constraint("Equal", 53, 55))
sketch2.addConstraint(Sketcher.Constraint("Equal", 51, 57))
sketch2.addConstraint(Sketcher.Constraint("Equal", 55, 59))
sketch2.addConstraint(Sketcher.Constraint("Equal", 59, 61))
sketch2.addConstraint(Sketcher.Constraint("Equal", 57, 63))
sketch2.addConstraint(Sketcher.Constraint("Equal", 61, 65))
sketch2.addConstraint(Sketcher.Constraint("Equal", 65, 67))
sketch2.addConstraint(Sketcher.Constraint("Equal", 63, 69))
sketch2.addConstraint(Sketcher.Constraint("Equal", 67, 71))
sketch2.addConstraint(Sketcher.Constraint("Symmetric", 1, 3, 37, 3, -1, 1))
sketch2.addConstraint(Sketcher.Constraint("Symmetric", 3, 3, 39, 3, -1, 1))
sketch2.addConstraint(Sketcher.Constraint("Symmetric", 7, 3, 43, 3, -1, 1))
sketch2.addConstraint(Sketcher.Constraint("Symmetric", 9, 3, 45, 3, -1, 1))
sketch2.addConstraint(Sketcher.Constraint("Symmetric", 11, 3, 47, 3, -1, 1))
sketch2.addConstraint(Sketcher.Constraint("Symmetric", 13, 3, 49, 3, -1, 1))
sketch2.addConstraint(Sketcher.Constraint("Symmetric", 15, 3, 51, 3, -1, 1))
sketch2.addConstraint(Sketcher.Constraint("Symmetric", 17, 3, 53, 3, -1, 1))
sketch2.addConstraint(Sketcher.Constraint("Symmetric", 19, 3, 55, 3, -1, 1))
sketch2.addConstraint(Sketcher.Constraint("Symmetric", 21, 3, 57, 3, -1, 1))
sketch2.addConstraint(Sketcher.Constraint("Symmetric", 25, 3, 61, 3, -1, 1))
sketch2.addConstraint(Sketcher.Constraint("Symmetric", 27, 3, 63, 3, -1, 1))
sketch2.addConstraint(Sketcher.Constraint("Symmetric", 29, 3, 65, 3, -1, 1))
sketch2.addConstraint(Sketcher.Constraint("Symmetric", 31, 3, 67, 3, -1, 1))
sketch2.addConstraint(Sketcher.Constraint("Symmetric", 33, 3, 69, 3, -1, 1))
sketch2.addConstraint(Sketcher.Constraint("Symmetric", 35, 3, 71, 3, -1, 1))
sketch2.addConstraint(Sketcher.Constraint("Symmetric", 17, 3, 25, 3, -2))
sketch2.addConstraint(Sketcher.Constraint("Symmetric", 15, 3, 27, 3, -2))
sketch2.addConstraint(Sketcher.Constraint("Symmetric", 13, 3, 29, 3, -2))
sketch2.addConstraint(Sketcher.Constraint("Symmetric", 11, 3, 31, 3, -2))
sketch2.addConstraint(Sketcher.Constraint("Symmetric", 9, 3, 33, 3, -2))
sketch2.addConstraint(Sketcher.Constraint("Symmetric", 7, 3, 35, 3, -2))
sketch2.addConstraint(Sketcher.Constraint("Symmetric", 20, 2, 21, 1, -2))
sketch2.addConstraint(Sketcher.Constraint("Symmetric", 4, 2, 37, 1, -2))
sketch2.addConstraint(Sketcher.Constraint("Parallel", 4, 8))
sketch2.addConstraint(Sketcher.Constraint("Parallel", 10, 14))
sketch2.addConstraint(Sketcher.Constraint("Perpendicular", 2, 16))
sketch2.addConstraint(Sketcher.Constraint("Parallel", 16, 20))
sketch2.addConstraint(Sketcher.Constraint("Perpendicular", 6, 24))
sketch2.addConstraint(Sketcher.Constraint("Perpendicular", 14, 28))
sketch2.addConstraint(Sketcher.Constraint("Perpendicular", 26, 40))
sketch2.addConstraint(Sketcher.Constraint("Perpendicular", 44, 58))
sketch2.addConstraint(Sketcher.Constraint("Equal", 54, 0))
sketch2.addConstraint(Sketcher.Constraint("Equal", 4, 8))
sketch2.addConstraint(Sketcher.Constraint("Equal", 8, 10))
sketch2.addConstraint(Sketcher.Constraint("Equal", 6, 12))
sketch2.addConstraint(Sketcher.Constraint("Radius", 1, Q("5 mm")))
sketch2.addConstraint(Sketcher.Constraint("Radius", 3, Q("2 mm")))
sketch2.addConstraint(Sketcher.Constraint("Angle", 2, Q("165 deg")))
sketch2.addConstraint(Sketcher.Constraint("DistanceX", -1, 1, 1, 1, Q("55.580799 mm")))
sketch2.addConstraint(Sketcher.Constraint("DistanceY", -1, 1, 19, 1, Q("55.580799 mm")))
sketch2.addConstraint(Sketcher.Constraint("Distance", 2, Q("42.193009 mm")))
sketch2.addConstraint(Sketcher.Constraint("DistanceX", -1, 1, 7, 3, Q("53.266392 mm")))
sketch2.addConstraint(Sketcher.Constraint("DistanceY", -1, 1, 7, 3, Q("21.489692 mm")))
sketch2.addConstraint(Sketcher.Constraint("DistanceX", -1, 1, 15, 3, Q("7.67156 mm")))
sketch2.addConstraint(Sketcher.Constraint("DistanceY", -1, 1, 15, 3, Q("13.287532 mm")))
sketch2.setExpression("Constraints[146]", "Params.sketch2_radius")
sketch2.setExpression("Constraints[147]", "Params.sketch2_radius2")
pocket1 = body.newObject("PartDesign::Pocket", "Pocket")
pocket1.Profile = sketch2
pocket1.setExpression("Length", "Params.pocket1_length")
pocket1.Reversed = True
doc.recompute()

chamfer = body.newObject("PartDesign::Chamfer", "Chamfer")
chamfer.Base = (pocket1, edges_at(pocket1, [
    (-13, 0, -65),
    (-13, 0, -80),
    (13, 0, -80),
    (13, 0, -65),
]))
chamfer.setExpression("Size", "Params.chamfer_size")

doc.recompute()
